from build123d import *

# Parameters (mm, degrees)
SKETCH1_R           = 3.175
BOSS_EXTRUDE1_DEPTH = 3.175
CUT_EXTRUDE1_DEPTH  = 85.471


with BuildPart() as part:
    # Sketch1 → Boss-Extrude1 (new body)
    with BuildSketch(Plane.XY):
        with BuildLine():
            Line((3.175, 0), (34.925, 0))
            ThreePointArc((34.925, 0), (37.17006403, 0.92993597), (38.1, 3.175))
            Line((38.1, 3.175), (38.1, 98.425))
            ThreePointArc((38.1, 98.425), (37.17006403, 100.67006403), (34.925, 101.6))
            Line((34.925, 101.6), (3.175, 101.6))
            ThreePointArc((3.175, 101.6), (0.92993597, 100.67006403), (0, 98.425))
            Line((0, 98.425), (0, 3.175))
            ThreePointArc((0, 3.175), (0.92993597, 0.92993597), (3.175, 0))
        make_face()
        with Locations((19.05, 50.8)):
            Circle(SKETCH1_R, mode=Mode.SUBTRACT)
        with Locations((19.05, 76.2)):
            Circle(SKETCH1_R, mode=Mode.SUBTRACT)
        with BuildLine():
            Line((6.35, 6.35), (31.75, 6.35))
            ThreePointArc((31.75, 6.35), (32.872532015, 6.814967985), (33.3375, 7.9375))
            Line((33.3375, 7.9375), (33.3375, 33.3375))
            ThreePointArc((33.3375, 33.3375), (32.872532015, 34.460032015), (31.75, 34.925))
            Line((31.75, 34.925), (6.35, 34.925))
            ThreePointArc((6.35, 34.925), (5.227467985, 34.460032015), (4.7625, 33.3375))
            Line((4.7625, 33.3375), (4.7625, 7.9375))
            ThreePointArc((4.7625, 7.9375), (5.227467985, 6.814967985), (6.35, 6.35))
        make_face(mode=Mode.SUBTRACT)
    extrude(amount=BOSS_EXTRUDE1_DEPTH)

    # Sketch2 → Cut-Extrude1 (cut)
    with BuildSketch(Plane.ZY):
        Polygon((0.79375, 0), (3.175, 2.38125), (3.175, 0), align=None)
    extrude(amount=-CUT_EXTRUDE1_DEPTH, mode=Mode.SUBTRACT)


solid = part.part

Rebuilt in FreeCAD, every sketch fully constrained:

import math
import FreeCAD as App
import Part
import Sketcher

V = App.Vector
Q = App.Units.Quantity

doc = App.newDocument("Part")
params = doc.addObject("Spreadsheet::Sheet", "Params")
for row, (alias, value) in enumerate([
    ("sketch1_diameter", "0.25 in"),
    ("sketch1_width", "1 in"),
    ("sketch1_radius", "0.0625 in"),
    ("sketch1_width2", "1.25 in"),
    ("pad1_length", "0.125 in"),
    ("sketch2_width", "0.09375 in"),
    ("pocket1_length", "3.365 in"),
], start=1):
    params.set(f"A{row}", alias)
    params.set(f"B{row}", "=" + value)
    params.setAlias(f"B{row}", alias)

body = doc.addObject("PartDesign::Body", "Body")

sketch1 = body.newObject("Sketcher::SketchObject", "Sketch")
sketch1.AttachmentSupport = (doc.getObject("XY_Plane"), [""])
sketch1.MapMode = "FlatFace"
sketch1.addGeometry([
    Part.LineSegment(V(3.2, 0, 0), V(34.9, 0, 0)),
    Part.ArcOfCircle(Part.Circle(V(34.9, 3.2, 0), V(0, 0, 1), 3.2), math.radians(-90), math.radians(0)),
    Part.LineSegment(V(38.1, 3.2, 0), V(38.1, 98.4, 0)),
    Part.ArcOfCircle(Part.Circle(V(34.9, 98.4, 0), V(0, 0, 1), 3.2), math.radians(0), math.radians(90)),
    Part.LineSegment(V(34.9, 101.6, 0), V(3.2, 101.6, 0)),
    Part.ArcOfCircle(Part.Circle(V(3.2, 98.4, 0), V(0, 0, 1), 3.2), math.radians(90), math.radians(180)),
    Part.LineSegment(V(0, 98.4, 0), V(0, 3.2, 0)),
    Part.ArcOfCircle(Part.Circle(V(3.2, 3.2, 0), V(0, 0, 1), 3.2), math.radians(-180), math.radians(-90)),
    Part.LineSegment(V(31.8, 6.3, 0), V(6.3, 6.3, 0)),
    Part.ArcOfCircle(Part.Circle(V(6.3, 7.9, 0), V(0, 0, 1), 1.6), math.radians(180), math.radians(270)),
    Part.LineSegment(V(4.8, 7.9, 0), V(4.8, 33.3, 0)),
    Part.ArcOfCircle(Part.Circle(V(6.3, 33.3, 0), V(0, 0, 1), 1.6), math.radians(90), math.radians(180)),
    Part.LineSegment(V(6.3, 34.9, 0), V(31.8, 34.9, 0)),
    Part.ArcOfCircle(Part.Circle(V(31.8, 33.3, 0), V(0, 0, 1), 1.6), math.radians(0), math.radians(90)),
    Part.LineSegment(V(33.3, 33.3, 0), V(33.3, 7.9, 0)),
    Part.ArcOfCircle(Part.Circle(V(31.8, 7.9, 0), V(0, 0, 1), 1.6), math.radians(-90), math.radians(0)),
    Part.Circle(V(19.1, 50.8, 0), V(0, 0, 1), 3.2),
    Part.Circle(V(19.1, 76.2, 0), V(0, 0, 1), 3.2),
], False)
sketch1.addConstraint([
    Sketcher.Constraint("Tangent", 0, 2, 1, 1),
    Sketcher.Constraint("Tangent", 1, 2, 2, 1),
    Sketcher.Constraint("Tangent", 2, 2, 3, 1),
    Sketcher.Constraint("Tangent", 3, 2, 4, 1),
    Sketcher.Constraint("Tangent", 4, 2, 5, 1),
    Sketcher.Constraint("Tangent", 5, 2, 6, 1),
    Sketcher.Constraint("Tangent", 6, 2, 7, 1),
    Sketcher.Constraint("Tangent", 7, 2, 0, 1),
    Sketcher.Constraint("Tangent", 8, 2, 9, 2),
    Sketcher.Constraint("Tangent", 9, 1, 10, 1),
    Sketcher.Constraint("Tangent", 10, 2, 11, 2),
    Sketcher.Constraint("Tangent", 11, 1, 12, 1),
    Sketcher.Constraint("Tangent", 12, 2, 13, 2),
    Sketcher.Constraint("Tangent", 13, 1, 14, 1),
    Sketcher.Constraint("Tangent", 14, 2, 15, 2),
    Sketcher.Constraint("Tangent", 15, 1, 8, 1),
    Sketcher.Constraint("Horizontal", 0),
    Sketcher.Constraint("Vertical", 2),
    Sketcher.Constraint("Horizontal", 4),
    Sketcher.Constraint("Vertical", 6),
    Sketcher.Constraint("Horizontal", 8),
    Sketcher.Constraint("Vertical", 10),
    Sketcher.Constraint("Horizontal", 12),
    Sketcher.Constraint("Vertical", 14),
    Sketcher.Constraint("Equal", 1, 3),
    Sketcher.Constraint("Equal", 3, 5),
    Sketcher.Constraint("Equal", 5, 7),
    Sketcher.Constraint("Equal", 9, 11),
    Sketcher.Constraint("Equal", 11, 13),
    Sketcher.Constraint("Equal", 13, 15),
    Sketcher.Constraint("Equal", 7, 16),
    Sketcher.Constraint("Equal", 16, 17),
    Sketcher.Constraint("PointOnObject", 0, 2, -1),
    Sketcher.Constraint("PointOnObject", 5, 2, -2),
    Sketcher.Constraint("Vertical", 16, 3, 17, 3),
    Sketcher.Constraint("Equal", 12, 10),
    Sketcher.Constraint("Diameter", 16, Q("0.25 in")),
    Sketcher.Constraint("DistanceX", 8, 2, 8, 1, Q("1 in")),
    Sketcher.Constraint("DistanceY", -1, 1, 16, 3, Q("2 in")),
    Sketcher.Constraint("DistanceY", -1, 1, 17, 3, Q("3 in")),
    Sketcher.Constraint("DistanceY", -1, 1, 3, 2, Q("4 in")),
    Sketcher.Constraint("Radius", 9, Q("0.0625 in")),
    Sketcher.Constraint("DistanceX", 0, 1, 0, 2, Q("1.25 in")),
    Sketcher.Constraint("DistanceX", 11, 3, 16, 3, Q("0.5 in")),
    Sketcher.Constraint("DistanceX", -1, 1, 9, 3, Q("0.25 in")),
    Sketcher.Constraint("DistanceY", -1, 1, 8, 2, Q("0.25 in")),
])
sketch1.setExpression("Constraints[36]", "Params.sketch1_diameter")
sketch1.setExpression("Constraints[37]", "Params.sketch1_width")
sketch1.setExpression("Constraints[41]", "Params.sketch1_radius")
sketch1.setExpression("Constraints[42]", "Params.sketch1_width2")
pad1 = body.newObject("PartDesign::Pad", "Pad")
pad1.Profile = sketch1
pad1.setExpression("Length", "Params.pad1_length")

sketch2 = body.newObject("Sketcher::SketchObject", "Sketch001")
sketch2.AttachmentSupport = (doc.getObject("YZ_Plane"), [""])
sketch2.MapMode = "FlatFace"
sketch2.addGeometry([
    Part.LineSegment(V(2.4, 3.2, 0), V(0, 0.8, 0)),
    Part.LineSegment(V(0, 0.8, 0), V(0, 3.2, 0)),
    Part.LineSegment(V(0, 3.2, 0), V(2.4, 3.2, 0)),
], False)
sketch2.addConstraint([
    Sketcher.Constraint("Coincident", 0, 2, 1, 1),
    Sketcher.Constraint("Coincident", 1, 2, 2, 1),
    Sketcher.Constraint("Coincident", 2, 2, 0, 1),
    Sketcher.Constraint("Vertical", 1),
    Sketcher.Constraint("Horizontal", 2),
    Sketcher.Constraint("PointOnObject", 0, 2, -2),
    Sketcher.Constraint("Equal", 2, 1),
    Sketcher.Constraint("DistanceX", 2, 1, 2, 2, Q("0.09375 in")),
    Sketcher.Constraint("DistanceY", -1, 1, 0, 2, Q("0.03125 in")),
])
sketch2.setExpression("Constraints[7]", "Params.sketch2_width")
pocket1 = body.newObject("PartDesign::Pocket", "Pocket")
pocket1.Profile = sketch2
pocket1.setExpression("Length", "Params.pocket1_length")
pocket1.Reversed = True

doc.recompute()
